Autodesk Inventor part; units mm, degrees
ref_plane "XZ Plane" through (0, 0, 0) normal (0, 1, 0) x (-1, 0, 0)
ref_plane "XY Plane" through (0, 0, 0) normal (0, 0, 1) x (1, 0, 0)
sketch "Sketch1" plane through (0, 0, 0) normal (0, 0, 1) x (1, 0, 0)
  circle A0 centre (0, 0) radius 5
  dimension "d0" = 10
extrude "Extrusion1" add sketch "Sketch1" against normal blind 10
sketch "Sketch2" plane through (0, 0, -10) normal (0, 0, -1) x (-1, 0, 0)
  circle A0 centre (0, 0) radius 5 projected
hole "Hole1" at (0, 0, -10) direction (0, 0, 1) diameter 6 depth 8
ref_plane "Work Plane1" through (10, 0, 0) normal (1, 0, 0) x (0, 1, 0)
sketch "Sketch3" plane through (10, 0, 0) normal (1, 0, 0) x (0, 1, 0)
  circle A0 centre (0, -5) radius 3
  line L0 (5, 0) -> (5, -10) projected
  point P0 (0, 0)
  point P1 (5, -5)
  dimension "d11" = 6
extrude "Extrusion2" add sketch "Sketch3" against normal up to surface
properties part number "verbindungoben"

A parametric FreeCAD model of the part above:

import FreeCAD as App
import Part
import Sketcher

V = App.Vector
Q = App.Units.Quantity

doc = App.newDocument("Part")
body = doc.addObject("PartDesign::Body", "Body")

# Sketch on XY plane
sketch1 = doc.addObject("Sketcher::SketchObject", "Sketch")
body.addObject(sketch1)
sketch1.AttachmentSupport = (doc.XY_Plane, [""])
sketch1.MapMode = "FlatFace"
sketch1.addGeometry(Part.Circle(V(0, 0, 0), V(0, 0, 1), 5), False)
sketch1.addConstraint(Sketcher.Constraint("Coincident", 0, 3, -1, 1))
sketch1.addConstraint(Sketcher.Constraint("Diameter", 0, Q("10 mm")))
pad1 = doc.addObject("PartDesign::Pad", "Pad")
body.addObject(pad1)
pad1.Profile = sketch1
pad1.Length = 10
pad1.Reversed = True

# Sketch on XY plane
sketch2 = doc.addObject("Sketcher::SketchObject", "Sketch001")
body.addObject(sketch2)
sketch2.AttachmentSupport = (doc.XY_Plane, [""])
sketch2.MapMode = "FlatFace"
sketch2.AttachmentOffset = App.Placement(V(0, 0, -10), App.Rotation())
sketch2.addGeometry(Part.Circle(V(0, 0, 0), V(0, 0, 1), 3), False)
sketch2.addConstraint(Sketcher.Constraint("Coincident", 0, 3, -1, 1))
sketch2.addConstraint(Sketcher.Constraint("Diameter", 0, Q("6 mm")))
doc.recompute()
hole = doc.addObject("PartDesign::Hole", "Hole")
body.addObject(hole)
hole.Profile = sketch2
hole.ThreadType = "None"
hole.Diameter = 6
hole.DepthType = "Dimension"
hole.Depth = 8
hole.DrillPoint = "Flat"
hole.Reversed = True

# Sketch on YZ plane
sketch3 = doc.addObject("Sketcher::SketchObject", "Sketch002")
body.addObject(sketch3)
sketch3.AttachmentSupport = (doc.YZ_Plane, [""])
sketch3.MapMode = "FlatFace"
sketch3.AttachmentOffset = App.Placement(V(0, 0, 10), App.Rotation())
sketch3.addGeometry(Part.Circle(V(0, -5, 0), V(0, 0, 1), 3), False)
sketch3.addConstraint(Sketcher.Constraint("PointOnObject", 0, 3, -2))
sketch3.addConstraint(Sketcher.Constraint("Diameter", 0, Q("6 mm")))
sketch3.addConstraint(Sketcher.Constraint("DistanceY", 0, 3, -1, 1, Q("5 mm")))
pad2 = doc.addObject("PartDesign::Pad", "Pad001")
body.addObject(pad2)
pad2.Profile = sketch3
pad2.Type = "UpToFirst"
pad2.Reversed = True

doc.recompute()
